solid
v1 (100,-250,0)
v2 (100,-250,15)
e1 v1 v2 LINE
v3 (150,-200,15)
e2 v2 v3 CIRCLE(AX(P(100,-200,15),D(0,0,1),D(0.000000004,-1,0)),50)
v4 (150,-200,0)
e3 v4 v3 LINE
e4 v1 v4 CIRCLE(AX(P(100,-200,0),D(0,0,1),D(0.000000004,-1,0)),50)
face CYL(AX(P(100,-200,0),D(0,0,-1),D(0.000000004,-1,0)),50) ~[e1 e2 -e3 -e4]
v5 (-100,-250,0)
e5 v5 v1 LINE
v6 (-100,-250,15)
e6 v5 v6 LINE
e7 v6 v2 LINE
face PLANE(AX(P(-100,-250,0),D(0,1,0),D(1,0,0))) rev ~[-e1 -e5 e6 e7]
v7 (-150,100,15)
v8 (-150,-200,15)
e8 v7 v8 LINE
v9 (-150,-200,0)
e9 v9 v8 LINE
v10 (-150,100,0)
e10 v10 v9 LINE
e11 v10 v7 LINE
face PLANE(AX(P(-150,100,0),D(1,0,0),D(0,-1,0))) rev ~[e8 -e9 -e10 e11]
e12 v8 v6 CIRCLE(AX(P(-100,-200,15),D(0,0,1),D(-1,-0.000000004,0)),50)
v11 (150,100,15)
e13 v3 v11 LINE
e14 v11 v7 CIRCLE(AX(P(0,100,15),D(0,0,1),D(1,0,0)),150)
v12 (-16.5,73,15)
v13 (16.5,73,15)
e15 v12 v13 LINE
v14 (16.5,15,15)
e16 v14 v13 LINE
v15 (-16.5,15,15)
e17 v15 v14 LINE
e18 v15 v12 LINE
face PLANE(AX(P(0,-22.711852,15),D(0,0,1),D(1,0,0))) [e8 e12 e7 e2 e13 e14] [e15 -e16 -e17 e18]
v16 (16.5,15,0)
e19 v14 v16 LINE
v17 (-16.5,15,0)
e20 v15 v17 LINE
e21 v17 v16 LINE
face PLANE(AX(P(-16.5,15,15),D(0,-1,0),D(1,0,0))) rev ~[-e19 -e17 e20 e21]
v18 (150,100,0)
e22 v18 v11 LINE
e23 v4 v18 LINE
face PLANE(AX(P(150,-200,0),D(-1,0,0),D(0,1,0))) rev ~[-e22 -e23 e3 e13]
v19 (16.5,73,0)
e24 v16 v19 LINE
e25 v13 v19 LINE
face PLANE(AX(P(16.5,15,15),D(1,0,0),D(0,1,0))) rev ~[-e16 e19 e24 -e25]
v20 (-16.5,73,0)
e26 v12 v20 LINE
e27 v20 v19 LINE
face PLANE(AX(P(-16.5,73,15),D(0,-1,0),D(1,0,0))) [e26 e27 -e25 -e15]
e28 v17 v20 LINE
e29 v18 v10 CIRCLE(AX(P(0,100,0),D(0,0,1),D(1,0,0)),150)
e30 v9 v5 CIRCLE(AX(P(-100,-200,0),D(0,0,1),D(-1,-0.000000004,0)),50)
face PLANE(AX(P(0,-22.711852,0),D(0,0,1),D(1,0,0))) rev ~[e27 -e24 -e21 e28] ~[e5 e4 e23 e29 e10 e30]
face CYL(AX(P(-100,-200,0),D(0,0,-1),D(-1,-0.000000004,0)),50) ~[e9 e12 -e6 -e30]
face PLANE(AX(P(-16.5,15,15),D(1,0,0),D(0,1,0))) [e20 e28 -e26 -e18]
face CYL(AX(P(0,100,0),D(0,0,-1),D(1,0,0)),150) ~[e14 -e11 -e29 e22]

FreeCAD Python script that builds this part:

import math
import FreeCAD as App
import Part
import Sketcher

V = App.Vector
Q = App.Units.Quantity

doc = App.newDocument("Part")
params = doc.addObject("Spreadsheet::Sheet", "Params")
for row, (alias, value) in enumerate([
    ("sketch1_radius", "50 mm"),
    ("sketch1_radius2", "150 mm"),
    ("sketch1_height", "300 mm"),
    ("pad1_length", "15 mm"),
    ("sketch2_width", "33 mm"),
    ("sketch2_height", "58 mm"),
], start=1):
    params.set(f"A{row}", alias)
    params.set(f"B{row}", "=" + value)
    params.setAlias(f"B{row}", alias)

body = doc.addObject("PartDesign::Body", "Body")

sketch1 = body.newObject("Sketcher::SketchObject", "Sketch")
sketch1.AttachmentSupport = (doc.getObject("XY_Plane"), [""])
sketch1.MapMode = "FlatFace"
sketch1.addGeometry([
    Part.LineSegment(V(-100, -250, 0), V(100, -250, 0)),
    Part.ArcOfCircle(Part.Circle(V(100, -200, 0), V(0, 0, 1), 50), math.radians(-90), math.radians(0)),
    Part.LineSegment(V(150, -200, 0), V(150, 100, 0)),
    Part.ArcOfCircle(Part.Circle(V(0, 100, 0), V(0, 0, 1), 150), math.radians(0), math.radians(180)),
    Part.LineSegment(V(-150, 100, 0), V(-150, -200, 0)),
    Part.ArcOfCircle(Part.Circle(V(-100, -200, 0), V(0, 0, 1), 50), math.radians(-180), math.radians(-90)),
], False)
sketch1.addConstraint([
    Sketcher.Constraint("Tangent", 0, 2, 1, 1),
    Sketcher.Constraint("Tangent", 1, 2, 2, 1),
    Sketcher.Constraint("Tangent", 2, 2, 3, 1),
    Sketcher.Constraint("Tangent", 3, 2, 4, 1),
    Sketcher.Constraint("Tangent", 4, 2, 5, 1),
    Sketcher.Constraint("Tangent", 5, 2, 0, 1),
    Sketcher.Constraint("Horizontal", 0),
    Sketcher.Constraint("Vertical", 2),
    Sketcher.Constraint("Vertical", 4),
    Sketcher.Constraint("Equal", 1, 5),
    Sketcher.Constraint("PointOnObject", 3, 3, -2),
    Sketcher.Constraint("Radius", 1, Q("50 mm")),
    Sketcher.Constraint("Radius", 3, Q("150 mm")),
    Sketcher.Constraint("DistanceY", 2, 1, 2, 2, Q("300 mm")),
    Sketcher.Constraint("DistanceY", 1, 3, -1, 1, Q("200 mm")),
])
sketch1.setExpression("Constraints[11]", "Params.sketch1_radius")
sketch1.setExpression("Constraints[12]", "Params.sketch1_radius2")
sketch1.setExpression("Constraints[13]", "Params.sketch1_height")
pad1 = body.newObject("PartDesign::Pad", "Pad")
pad1.Profile = sketch1
pad1.setExpression("Length", "Params.pad1_length")

sketch2 = body.newObject("Sketcher::SketchObject", "Sketch001")
sketch2.AttachmentSupport = (doc.getObject("XY_Plane"), [""])
sketch2.MapMode = "FlatFace"
sketch2.AttachmentOffset = App.Placement(V(0, 0, 15), App.Rotation())
sketch2.addGeometry([
    Part.LineSegment(V(-16, 73, 0), V(-16, 15, 0)),
    Part.LineSegment(V(-16, 15, 0), V(16, 15, 0)),
    Part.LineSegment(V(16, 15, 0), V(16, 73, 0)),
    Part.LineSegment(V(16, 73, 0), V(-16, 73, 0)),
], False)
sketch2.addConstraint([
    Sketcher.Constraint("Coincident", 0, 2, 1, 1),
    Sketcher.Constraint("Coincident", 1, 2, 2, 1),
    Sketcher.Constraint("Coincident", 2, 2, 3, 1),
    Sketcher.Constraint("Coincident", 3, 2, 0, 1),
    Sketcher.Constraint("Vertical", 0),
    Sketcher.Constraint("Horizontal", 1),
    Sketcher.Constraint("Vertical", 2),
    Sketcher.Constraint("Horizontal", 3),
    Sketcher.Constraint("DistanceX", 1, 1, 1, 2, Q("33 mm")),
    Sketcher.Constraint("DistanceY", 0, 2, 0, 1, Q("58 mm")),
    Sketcher.Constraint("DistanceY", -1, 1, 0, 2, Q("15 mm")),
    Sketcher.Constraint("DistanceX", 0, 2, -1, 1, Q("16.5 mm")),
])
sketch2.setExpression("Constraints[8]", "Params.sketch2_width")
sketch2.setExpression("Constraints[9]", "Params.sketch2_height")
pocket1 = body.newObject("PartDesign::Pocket", "Pocket")
pocket1.Profile = sketch2
pocket1.Type = "ThroughAll"

doc.recompute()
